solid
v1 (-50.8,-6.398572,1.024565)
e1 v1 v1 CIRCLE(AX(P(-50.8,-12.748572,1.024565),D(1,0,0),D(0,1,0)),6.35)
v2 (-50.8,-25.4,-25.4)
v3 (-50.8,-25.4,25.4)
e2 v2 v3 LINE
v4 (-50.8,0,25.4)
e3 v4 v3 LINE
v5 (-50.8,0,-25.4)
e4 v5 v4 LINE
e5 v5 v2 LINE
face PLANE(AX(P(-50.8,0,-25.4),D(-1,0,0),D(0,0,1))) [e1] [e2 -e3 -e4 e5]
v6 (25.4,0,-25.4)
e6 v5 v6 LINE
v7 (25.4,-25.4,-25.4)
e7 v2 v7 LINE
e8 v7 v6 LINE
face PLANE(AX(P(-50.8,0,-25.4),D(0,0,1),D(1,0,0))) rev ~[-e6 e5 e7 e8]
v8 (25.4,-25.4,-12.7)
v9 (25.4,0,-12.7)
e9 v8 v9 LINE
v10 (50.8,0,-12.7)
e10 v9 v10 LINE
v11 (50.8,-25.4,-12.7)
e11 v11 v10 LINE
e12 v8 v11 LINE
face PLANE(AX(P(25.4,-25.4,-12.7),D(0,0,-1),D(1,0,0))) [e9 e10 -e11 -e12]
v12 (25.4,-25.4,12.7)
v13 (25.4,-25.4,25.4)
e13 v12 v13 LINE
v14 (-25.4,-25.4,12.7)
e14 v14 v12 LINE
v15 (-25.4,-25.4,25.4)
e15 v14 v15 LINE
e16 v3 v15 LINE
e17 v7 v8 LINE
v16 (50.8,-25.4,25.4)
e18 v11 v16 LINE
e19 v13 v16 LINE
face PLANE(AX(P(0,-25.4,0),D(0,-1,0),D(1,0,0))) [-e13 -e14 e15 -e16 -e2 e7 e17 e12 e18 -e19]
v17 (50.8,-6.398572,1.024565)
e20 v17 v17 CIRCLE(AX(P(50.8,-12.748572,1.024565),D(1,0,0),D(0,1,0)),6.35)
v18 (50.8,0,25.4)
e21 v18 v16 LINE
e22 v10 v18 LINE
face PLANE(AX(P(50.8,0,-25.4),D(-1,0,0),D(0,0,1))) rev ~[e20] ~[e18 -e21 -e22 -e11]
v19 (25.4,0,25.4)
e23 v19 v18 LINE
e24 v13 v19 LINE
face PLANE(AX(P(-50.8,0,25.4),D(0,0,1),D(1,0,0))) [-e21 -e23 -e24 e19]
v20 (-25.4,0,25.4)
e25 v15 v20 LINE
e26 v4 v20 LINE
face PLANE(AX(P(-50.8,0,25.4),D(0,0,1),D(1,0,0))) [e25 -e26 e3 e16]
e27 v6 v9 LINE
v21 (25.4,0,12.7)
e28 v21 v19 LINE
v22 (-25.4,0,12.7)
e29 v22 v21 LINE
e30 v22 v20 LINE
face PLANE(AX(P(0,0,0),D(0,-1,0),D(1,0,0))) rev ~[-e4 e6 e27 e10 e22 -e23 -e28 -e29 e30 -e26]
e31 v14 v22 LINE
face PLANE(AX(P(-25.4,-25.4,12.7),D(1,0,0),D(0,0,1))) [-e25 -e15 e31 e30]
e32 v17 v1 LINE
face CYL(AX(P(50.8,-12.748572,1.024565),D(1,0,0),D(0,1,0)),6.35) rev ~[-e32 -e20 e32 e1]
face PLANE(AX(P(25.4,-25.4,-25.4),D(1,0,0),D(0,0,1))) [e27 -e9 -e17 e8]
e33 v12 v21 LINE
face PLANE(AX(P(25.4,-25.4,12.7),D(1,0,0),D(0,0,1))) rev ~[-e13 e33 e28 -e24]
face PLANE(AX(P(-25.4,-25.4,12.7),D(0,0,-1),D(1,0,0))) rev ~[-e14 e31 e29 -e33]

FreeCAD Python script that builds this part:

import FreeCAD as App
import Part
import Sketcher
Q = App.Units.Quantity

doc = App.newDocument("Part")
params = doc.addObject("Spreadsheet::Sheet", "Params")
for row, (alias, value) in enumerate([
    ("sketch1_width", "4 in"),
    ("sketch1_height", "2 in"),
    ("pad1_length", "1 in"),
    ("sketch2_width", "1 in"),
    ("sketch2_height", "0.5 in"),
    ("sketch3_diameter", "0.5 in"),
    ("sketch4_width", "2 in"),
    ("sketch4_height", "0.5 in"),
], start=1):
    params.set(f"A{row}", alias)
    params.set(f"B{row}", "=" + value)
    params.setAlias(f"B{row}", alias)

body = doc.addObject("PartDesign::Body", "Body")

sketch1 = body.newObject("Sketcher::SketchObject", "Sketch")
sketch1.AttachmentSupport = (doc.getObject("XZ_Plane"), [""])
sketch1.MapMode = "FlatFace"
sketch1.addGeometry([
    Part.LineSegment(App.Vector(-51, 25, 0), App.Vector(-51, -25, 0)),
    Part.LineSegment(App.Vector(-51, -25, 0), App.Vector(51, -25, 0)),
    Part.LineSegment(App.Vector(51, -25, 0), App.Vector(51, 25, 0)),
    Part.LineSegment(App.Vector(51, 25, 0), App.Vector(-51, 25, 0)),
], False)
sketch1.addConstraint([
    Sketcher.Constraint("Coincident", 0, 2, 1, 1),
    Sketcher.Constraint("Coincident", 1, 2, 2, 1),
    Sketcher.Constraint("Coincident", 2, 2, 3, 1),
    Sketcher.Constraint("Coincident", 3, 2, 0, 1),
    Sketcher.Constraint("Vertical", 0),
    Sketcher.Constraint("Horizontal", 1),
    Sketcher.Constraint("Vertical", 2),
    Sketcher.Constraint("Horizontal", 3),
    Sketcher.Constraint("Symmetric", 0, 2, 2, 2, -1, 1),
    Sketcher.Constraint("DistanceX", 1, 1, 1, 2, Q("4 in")),
    Sketcher.Constraint("DistanceY", 0, 2, 0, 1, Q("2 in")),
])
sketch1.setExpression("Constraints[9]", "Params.sketch1_width")
sketch1.setExpression("Constraints[10]", "Params.sketch1_height")
pad1 = body.newObject("PartDesign::Pad", "Pad")
pad1.Profile = sketch1
pad1.setExpression("Length", "Params.pad1_length")

sketch2 = body.newObject("Sketcher::SketchObject", "Sketch001")
sketch2.AttachmentSupport = (doc.getObject("XZ_Plane"), [""])
sketch2.MapMode = "FlatFace"
sketch2.AttachmentOffset = App.Placement(App.Vector(0, 0, 1 * 25.4), App.Rotation())
sketch2.addGeometry([
    Part.LineSegment(App.Vector(25, -13, 0), App.Vector(25, -25, 0)),
    Part.LineSegment(App.Vector(25, -25, 0), App.Vector(51, -25, 0)),
    Part.LineSegment(App.Vector(51, -25, 0), App.Vector(51, -13, 0)),
    Part.LineSegment(App.Vector(51, -13, 0), App.Vector(25, -13, 0)),
], False)
sketch2.addConstraint([
    Sketcher.Constraint("Coincident", 0, 2, 1, 1),
    Sketcher.Constraint("Coincident", 1, 2, 2, 1),
    Sketcher.Constraint("Coincident", 2, 2, 3, 1),
    Sketcher.Constraint("Coincident", 3, 2, 0, 1),
    Sketcher.Constraint("Vertical", 0),
    Sketcher.Constraint("Horizontal", 1),
    Sketcher.Constraint("Vertical", 2),
    Sketcher.Constraint("Horizontal", 3),
    Sketcher.Constraint("DistanceX", 1, 1, 1, 2, Q("1 in")),
    Sketcher.Constraint("DistanceY", 0, 2, 0, 1, Q("0.5 in")),
    Sketcher.Constraint("DistanceX", -1, 1, 0, 2, Q("1 in")),
    Sketcher.Constraint("DistanceY", 0, 2, -1, 1, Q("1 in")),
])
sketch2.setExpression("Constraints[8]", "Params.sketch2_width")
sketch2.setExpression("Constraints[9]", "Params.sketch2_height")
pocket1 = body.newObject("PartDesign::Pocket", "Pocket")
pocket1.Profile = sketch2
pocket1.Type = "ThroughAll"

sketch3 = body.newObject("Sketcher::SketchObject", "Sketch002")
sketch3.AttachmentSupport = (doc.getObject("YZ_Plane"), [""])
sketch3.MapMode = "FlatFace"
sketch3.AttachmentOffset = App.Placement(App.Vector(0, 0, 2 * 25.4), App.Rotation())
sketch3.addGeometry(Part.Circle(App.Vector(-13, 1, 0), App.Vector(0, 0, 1), 6), False)
sketch3.addConstraint([
    Sketcher.Constraint("Diameter", 0, Q("0.5 in")),
    Sketcher.Constraint("DistanceX", 0, 3, -1, 1, Q("12.748572 mm")),
    Sketcher.Constraint("DistanceY", -1, 1, 0, 3, Q("1.024565 mm")),
])
sketch3.setExpression("Constraints[0]", "Params.sketch3_diameter")
pocket2 = body.newObject("PartDesign::Pocket", "Pocket001")
pocket2.Profile = sketch3
pocket2.Type = "ThroughAll"

sketch4 = body.newObject("Sketcher::SketchObject", "Sketch003")
sketch4.AttachmentSupport = (doc.getObject("XZ_Plane"), [""])
sketch4.MapMode = "FlatFace"
sketch4.AttachmentOffset = App.Placement(App.Vector(0, 0, 1 * 25.4), App.Rotation())
sketch4.addGeometry([
    Part.LineSegment(App.Vector(-25, 25, 0), App.Vector(-25, 13, 0)),
    Part.LineSegment(App.Vector(-25, 13, 0), App.Vector(25, 13, 0)),
    Part.LineSegment(App.Vector(25, 13, 0), App.Vector(25, 25, 0)),
    Part.LineSegment(App.Vector(25, 25, 0), App.Vector(-25, 25, 0)),
], False)
sketch4.addConstraint([
    Sketcher.Constraint("Coincident", 0, 2, 1, 1),
    Sketcher.Constraint("Coincident", 1, 2, 2, 1),
    Sketcher.Constraint("Coincident", 2, 2, 3, 1),
    Sketcher.Constraint("Coincident", 3, 2, 0, 1),
    Sketcher.Constraint("Vertical", 0),
    Sketcher.Constraint("Horizontal", 1),
    Sketcher.Constraint("Vertical", 2),
    Sketcher.Constraint("Horizontal", 3),
    Sketcher.Constraint("DistanceX", 1, 1, 1, 2, Q("2 in")),
    Sketcher.Constraint("DistanceY", 0, 2, 0, 1, Q("0.5 in")),
    Sketcher.Constraint("DistanceX", 0, 2, -1, 1, Q("1 in")),
    Sketcher.Constraint("DistanceY", -1, 1, 2, 2, Q("1 in")),
])
sketch4.setExpression("Constraints[8]", "Params.sketch4_width")
sketch4.setExpression("Constraints[9]", "Params.sketch4_height")
pocket3 = body.newObject("PartDesign::Pocket", "Pocket002")
pocket3.Profile = sketch4
pocket3.Type = "ThroughAll"

doc.recompute()
